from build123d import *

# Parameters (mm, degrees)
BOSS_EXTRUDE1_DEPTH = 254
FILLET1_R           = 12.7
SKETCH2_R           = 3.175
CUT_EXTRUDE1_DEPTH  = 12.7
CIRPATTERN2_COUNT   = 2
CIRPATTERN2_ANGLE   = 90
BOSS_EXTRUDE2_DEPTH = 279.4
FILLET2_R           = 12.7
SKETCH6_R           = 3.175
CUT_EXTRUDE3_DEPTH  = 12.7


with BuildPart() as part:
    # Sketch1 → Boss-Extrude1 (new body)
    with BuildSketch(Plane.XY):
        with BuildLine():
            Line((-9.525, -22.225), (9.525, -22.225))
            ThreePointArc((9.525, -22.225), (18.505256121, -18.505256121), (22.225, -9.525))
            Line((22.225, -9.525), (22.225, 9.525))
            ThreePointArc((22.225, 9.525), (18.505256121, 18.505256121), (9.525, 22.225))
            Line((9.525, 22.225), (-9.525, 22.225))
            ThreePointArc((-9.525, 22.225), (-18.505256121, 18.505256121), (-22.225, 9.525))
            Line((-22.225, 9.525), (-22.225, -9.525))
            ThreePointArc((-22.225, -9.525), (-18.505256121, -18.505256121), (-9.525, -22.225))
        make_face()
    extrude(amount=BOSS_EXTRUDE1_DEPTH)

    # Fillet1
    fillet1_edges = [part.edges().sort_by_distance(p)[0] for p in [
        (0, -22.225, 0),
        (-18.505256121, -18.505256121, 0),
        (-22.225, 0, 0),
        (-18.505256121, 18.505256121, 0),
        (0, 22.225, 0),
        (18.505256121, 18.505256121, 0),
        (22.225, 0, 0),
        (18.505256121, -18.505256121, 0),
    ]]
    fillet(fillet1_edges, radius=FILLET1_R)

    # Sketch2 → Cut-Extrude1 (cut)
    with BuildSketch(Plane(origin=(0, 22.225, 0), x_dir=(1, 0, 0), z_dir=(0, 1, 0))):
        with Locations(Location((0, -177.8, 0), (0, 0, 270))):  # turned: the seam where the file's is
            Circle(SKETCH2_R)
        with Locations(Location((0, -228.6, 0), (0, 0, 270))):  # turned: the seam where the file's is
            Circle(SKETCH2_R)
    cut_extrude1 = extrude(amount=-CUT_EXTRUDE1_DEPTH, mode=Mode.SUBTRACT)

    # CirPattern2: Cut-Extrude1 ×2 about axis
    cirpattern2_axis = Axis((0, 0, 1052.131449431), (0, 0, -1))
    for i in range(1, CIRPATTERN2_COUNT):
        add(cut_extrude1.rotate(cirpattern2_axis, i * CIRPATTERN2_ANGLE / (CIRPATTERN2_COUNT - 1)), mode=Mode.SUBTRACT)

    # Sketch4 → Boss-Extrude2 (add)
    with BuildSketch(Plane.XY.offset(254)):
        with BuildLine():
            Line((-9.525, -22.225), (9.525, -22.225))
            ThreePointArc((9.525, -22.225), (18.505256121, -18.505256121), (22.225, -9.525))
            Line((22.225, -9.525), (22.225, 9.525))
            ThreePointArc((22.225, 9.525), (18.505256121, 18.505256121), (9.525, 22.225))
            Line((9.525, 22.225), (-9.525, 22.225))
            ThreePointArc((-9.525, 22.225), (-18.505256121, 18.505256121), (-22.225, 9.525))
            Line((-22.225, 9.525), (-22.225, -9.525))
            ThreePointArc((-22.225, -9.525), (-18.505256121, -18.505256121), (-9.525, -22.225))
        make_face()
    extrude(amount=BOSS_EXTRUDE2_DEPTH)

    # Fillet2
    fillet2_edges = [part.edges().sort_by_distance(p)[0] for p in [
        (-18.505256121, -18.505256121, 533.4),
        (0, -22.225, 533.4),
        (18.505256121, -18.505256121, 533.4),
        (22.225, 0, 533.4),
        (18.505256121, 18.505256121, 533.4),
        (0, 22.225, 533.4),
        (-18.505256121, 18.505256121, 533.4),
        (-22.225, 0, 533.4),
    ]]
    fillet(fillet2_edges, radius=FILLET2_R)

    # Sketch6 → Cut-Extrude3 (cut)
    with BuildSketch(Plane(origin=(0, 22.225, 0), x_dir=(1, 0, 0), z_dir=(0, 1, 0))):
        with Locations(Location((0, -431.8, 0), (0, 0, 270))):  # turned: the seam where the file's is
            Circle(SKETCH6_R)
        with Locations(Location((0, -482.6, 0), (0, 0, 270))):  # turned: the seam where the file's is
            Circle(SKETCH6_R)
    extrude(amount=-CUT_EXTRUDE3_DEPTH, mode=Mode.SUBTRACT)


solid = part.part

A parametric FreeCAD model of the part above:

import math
import FreeCAD as App
import Part
import Sketcher
Q = App.Units.Quantity


def edges_at(feature, points):
    """Names of the edges that pass closest to the given points."""
    edges = feature.Shape.Edges
    near = lambda p: min(range(len(edges)), key=lambda i: edges[i].distToShape(Part.Vertex(*p))[0])
    return sorted({f"Edge{near(p) + 1}" for p in points})

doc = App.newDocument("Part")
body = doc.addObject("PartDesign::Body", "Body")

sketch1 = body.newObject("Sketcher::SketchObject", "Sketch")
sketch1.AttachmentSupport = (doc.getObject("XY_Plane"), [""])
sketch1.MapMode = "FlatFace"
sketch1.addGeometry([
    Part.LineSegment(App.Vector(-10, -22, 0), App.Vector(10, -22, 0)),
    Part.ArcOfCircle(Part.Circle(App.Vector(10, -10, 0), App.Vector(0, 0, 1), 13), math.radians(-90), math.radians(0)),
    Part.LineSegment(App.Vector(22, -10, 0), App.Vector(22, 10, 0)),
    Part.ArcOfCircle(Part.Circle(App.Vector(10, 10, 0), App.Vector(0, 0, 1), 13), math.radians(0), math.radians(90)),
    Part.LineSegment(App.Vector(10, 22, 0), App.Vector(-10, 22, 0)),
    Part.ArcOfCircle(Part.Circle(App.Vector(-10, 10, 0), App.Vector(0, 0, 1), 13), math.radians(90), math.radians(180)),
    Part.LineSegment(App.Vector(-22, 10, 0), App.Vector(-22, -10, 0)),
    Part.ArcOfCircle(Part.Circle(App.Vector(-10, -10, 0), App.Vector(0, 0, 1), 13), math.radians(180), math.radians(270)),
], False)
sketch1.addConstraint([
    Sketcher.Constraint("Tangent", 0, 2, 1, 1),
    Sketcher.Constraint("Tangent", 1, 2, 2, 1),
    Sketcher.Constraint("Tangent", 2, 2, 3, 1),
    Sketcher.Constraint("Tangent", 3, 2, 4, 1),
    Sketcher.Constraint("Tangent", 4, 2, 5, 1),
    Sketcher.Constraint("Tangent", 5, 2, 6, 1),
    Sketcher.Constraint("Tangent", 6, 2, 7, 1),
    Sketcher.Constraint("Tangent", 7, 2, 0, 1),
    Sketcher.Constraint("Horizontal", 0),
    Sketcher.Constraint("Vertical", 2),
    Sketcher.Constraint("Horizontal", 4),
    Sketcher.Constraint("Vertical", 6),
    Sketcher.Constraint("Equal", 1, 3),
    Sketcher.Constraint("Equal", 3, 5),
    Sketcher.Constraint("Equal", 5, 7),
    Sketcher.Constraint("Symmetric", 1, 3, 5, 3, -1, 1),
    Sketcher.Constraint("Equal", 4, 2),
    Sketcher.Constraint("Radius", 1, Q("0.5 in")),
    Sketcher.Constraint("DistanceX", 0, 1, 0, 2, Q("0.75 in")),
])
pad1 = body.newObject("PartDesign::Pad", "Pad")
pad1.Profile = sketch1
pad1.Length = Q("10 in")
doc.recompute()

fillet = body.newObject("PartDesign::Fillet", "Fillet")
fillet.Base = (pad1, edges_at(pad1, [
    (0, -22.225, 0),
    (-18.505, -18.505, 0),
    (-22.225, 0, 0),
    (-18.505, 18.505, 0),
    (0, 22.225, 0),
    (18.505, 18.505, 0),
    (22.225, 0, 0),
    (18.505, -18.505, 0),
]))
fillet.Radius = Q("0.5 in")

sketch2 = body.newObject("Sketcher::SketchObject", "Sketch001")
sketch2.AttachmentSupport = (doc.getObject("XZ_Plane"), [""])
sketch2.MapMode = "FlatFace"
sketch2.AttachmentOffset = App.Placement(App.Vector(0, 0, -0.875 * 25.4), App.Rotation())
sketch2.addGeometry([
    Part.Circle(App.Vector(0, 177.8, 0), App.Vector(0, 0, 1), 3.2),
    Part.Circle(App.Vector(0, 228.6, 0), App.Vector(0, 0, 1), 3.2),
], False)
sketch2.addConstraint([
    Sketcher.Constraint("Equal", 0, 1),
    Sketcher.Constraint("PointOnObject", 0, 3, -2),
    Sketcher.Constraint("PointOnObject", 1, 3, -2),
    Sketcher.Constraint("Diameter", 0, Q("0.25 in")),
    Sketcher.Constraint("DistanceY", -1, 1, 0, 3, Q("7 in")),
    Sketcher.Constraint("DistanceY", -1, 1, 1, 3, Q("9 in")),
])
pocket1 = body.newObject("PartDesign::Pocket", "Pocket")
pocket1.Profile = sketch2
pocket1.Length = Q("0.5 in")
pocket1.Reversed = True
doc.recompute()

polarpattern = body.newObject("PartDesign::PolarPattern", "PolarPattern")
polarpattern.Originals = [pocket1]
polarpattern.Axis = (doc.getObject("Z_Axis"), [""])
polarpattern.Angle = 90
polarpattern.Occurrences = 2
polarpattern.Reversed = True
body.Tip = polarpattern

sketch3 = body.newObject("Sketcher::SketchObject", "Sketch002")
sketch3.AttachmentSupport = (doc.getObject("XY_Plane"), [""])
sketch3.MapMode = "FlatFace"
sketch3.AttachmentOffset = App.Placement(App.Vector(0, 0, 10 * 25.4), App.Rotation())
sketch3.addGeometry([
    Part.LineSegment(App.Vector(-10, -22, 0), App.Vector(10, -22, 0)),
    Part.ArcOfCircle(Part.Circle(App.Vector(10, -10, 0), App.Vector(0, 0, 1), 13), math.radians(-90), math.radians(0)),
    Part.LineSegment(App.Vector(22, -10, 0), App.Vector(22, 10, 0)),
    Part.ArcOfCircle(Part.Circle(App.Vector(10, 10, 0), App.Vector(0, 0, 1), 13), math.radians(0), math.radians(90)),
    Part.LineSegment(App.Vector(10, 22, 0), App.Vector(-10, 22, 0)),
    Part.ArcOfCircle(Part.Circle(App.Vector(-10, 10, 0), App.Vector(0, 0, 1), 13), math.radians(90), math.radians(180)),
    Part.LineSegment(App.Vector(-22, 10, 0), App.Vector(-22, -10, 0)),
    Part.ArcOfCircle(Part.Circle(App.Vector(-10, -10, 0), App.Vector(0, 0, 1), 13), math.radians(180), math.radians(270)),
], False)
sketch3.addConstraint([
    Sketcher.Constraint("Tangent", 0, 2, 1, 1),
    Sketcher.Constraint("Tangent", 1, 2, 2, 1),
    Sketcher.Constraint("Tangent", 2, 2, 3, 1),
    Sketcher.Constraint("Tangent", 3, 2, 4, 1),
    Sketcher.Constraint("Tangent", 4, 2, 5, 1),
    Sketcher.Constraint("Tangent", 5, 2, 6, 1),
    Sketcher.Constraint("Tangent", 6, 2, 7, 1),
    Sketcher.Constraint("Tangent", 7, 2, 0, 1),
    Sketcher.Constraint("Horizontal", 0),
    Sketcher.Constraint("Vertical", 2),
    Sketcher.Constraint("Horizontal", 4),
    Sketcher.Constraint("Vertical", 6),
    Sketcher.Constraint("Equal", 1, 3),
    Sketcher.Constraint("Equal", 3, 5),
    Sketcher.Constraint("Equal", 5, 7),
    Sketcher.Constraint("Symmetric", 1, 3, 5, 3, -1, 1),
    Sketcher.Constraint("Equal", 4, 2),
    Sketcher.Constraint("Radius", 1, Q("0.5 in")),
    Sketcher.Constraint("DistanceX", 0, 1, 0, 2, Q("0.75 in")),
])
pad2 = body.newObject("PartDesign::Pad", "Pad001")
pad2.Profile = sketch3
pad2.Length = Q("11 in")
doc.recompute()

fillet2 = body.newObject("PartDesign::Fillet", "Fillet001")
fillet2.Base = (pad2, edges_at(pad2, [
    (-18.505, -18.505, 533.4),
    (0, -22.225, 533.4),
    (18.505, -18.505, 533.4),
    (22.225, 0, 533.4),
    (18.505, 18.505, 533.4),
    (0, 22.225, 533.4),
    (-18.505, 18.505, 533.4),
    (-22.225, 0, 533.4),
]))
fillet2.Radius = Q("0.5 in")

sketch4 = body.newObject("Sketcher::SketchObject", "Sketch003")
sketch4.AttachmentSupport = (doc.getObject("XZ_Plane"), [""])
sketch4.MapMode = "FlatFace"
sketch4.AttachmentOffset = App.Placement(App.Vector(0, 0, -0.875 * 25.4), App.Rotation())
sketch4.addGeometry([
    Part.Circle(App.Vector(0, 431.8, 0), App.Vector(0, 0, 1), 3.2),
    Part.Circle(App.Vector(0, 482.6, 0), App.Vector(0, 0, 1), 3.2),
], False)
sketch4.addConstraint([
    Sketcher.Constraint("Equal", 0, 1),
    Sketcher.Constraint("PointOnObject", 0, 3, -2),
    Sketcher.Constraint("PointOnObject", 1, 3, -2),
    Sketcher.Constraint("Diameter", 0, Q("0.25 in")),
    Sketcher.Constraint("DistanceY", -1, 1, 0, 3, Q("17 in")),
    Sketcher.Constraint("DistanceY", -1, 1, 1, 3, Q("19 in")),
])
pocket2 = body.newObject("PartDesign::Pocket", "Pocket001")
pocket2.Profile = sketch4
pocket2.Length = Q("0.5 in")
pocket2.Reversed = True

doc.recompute()
